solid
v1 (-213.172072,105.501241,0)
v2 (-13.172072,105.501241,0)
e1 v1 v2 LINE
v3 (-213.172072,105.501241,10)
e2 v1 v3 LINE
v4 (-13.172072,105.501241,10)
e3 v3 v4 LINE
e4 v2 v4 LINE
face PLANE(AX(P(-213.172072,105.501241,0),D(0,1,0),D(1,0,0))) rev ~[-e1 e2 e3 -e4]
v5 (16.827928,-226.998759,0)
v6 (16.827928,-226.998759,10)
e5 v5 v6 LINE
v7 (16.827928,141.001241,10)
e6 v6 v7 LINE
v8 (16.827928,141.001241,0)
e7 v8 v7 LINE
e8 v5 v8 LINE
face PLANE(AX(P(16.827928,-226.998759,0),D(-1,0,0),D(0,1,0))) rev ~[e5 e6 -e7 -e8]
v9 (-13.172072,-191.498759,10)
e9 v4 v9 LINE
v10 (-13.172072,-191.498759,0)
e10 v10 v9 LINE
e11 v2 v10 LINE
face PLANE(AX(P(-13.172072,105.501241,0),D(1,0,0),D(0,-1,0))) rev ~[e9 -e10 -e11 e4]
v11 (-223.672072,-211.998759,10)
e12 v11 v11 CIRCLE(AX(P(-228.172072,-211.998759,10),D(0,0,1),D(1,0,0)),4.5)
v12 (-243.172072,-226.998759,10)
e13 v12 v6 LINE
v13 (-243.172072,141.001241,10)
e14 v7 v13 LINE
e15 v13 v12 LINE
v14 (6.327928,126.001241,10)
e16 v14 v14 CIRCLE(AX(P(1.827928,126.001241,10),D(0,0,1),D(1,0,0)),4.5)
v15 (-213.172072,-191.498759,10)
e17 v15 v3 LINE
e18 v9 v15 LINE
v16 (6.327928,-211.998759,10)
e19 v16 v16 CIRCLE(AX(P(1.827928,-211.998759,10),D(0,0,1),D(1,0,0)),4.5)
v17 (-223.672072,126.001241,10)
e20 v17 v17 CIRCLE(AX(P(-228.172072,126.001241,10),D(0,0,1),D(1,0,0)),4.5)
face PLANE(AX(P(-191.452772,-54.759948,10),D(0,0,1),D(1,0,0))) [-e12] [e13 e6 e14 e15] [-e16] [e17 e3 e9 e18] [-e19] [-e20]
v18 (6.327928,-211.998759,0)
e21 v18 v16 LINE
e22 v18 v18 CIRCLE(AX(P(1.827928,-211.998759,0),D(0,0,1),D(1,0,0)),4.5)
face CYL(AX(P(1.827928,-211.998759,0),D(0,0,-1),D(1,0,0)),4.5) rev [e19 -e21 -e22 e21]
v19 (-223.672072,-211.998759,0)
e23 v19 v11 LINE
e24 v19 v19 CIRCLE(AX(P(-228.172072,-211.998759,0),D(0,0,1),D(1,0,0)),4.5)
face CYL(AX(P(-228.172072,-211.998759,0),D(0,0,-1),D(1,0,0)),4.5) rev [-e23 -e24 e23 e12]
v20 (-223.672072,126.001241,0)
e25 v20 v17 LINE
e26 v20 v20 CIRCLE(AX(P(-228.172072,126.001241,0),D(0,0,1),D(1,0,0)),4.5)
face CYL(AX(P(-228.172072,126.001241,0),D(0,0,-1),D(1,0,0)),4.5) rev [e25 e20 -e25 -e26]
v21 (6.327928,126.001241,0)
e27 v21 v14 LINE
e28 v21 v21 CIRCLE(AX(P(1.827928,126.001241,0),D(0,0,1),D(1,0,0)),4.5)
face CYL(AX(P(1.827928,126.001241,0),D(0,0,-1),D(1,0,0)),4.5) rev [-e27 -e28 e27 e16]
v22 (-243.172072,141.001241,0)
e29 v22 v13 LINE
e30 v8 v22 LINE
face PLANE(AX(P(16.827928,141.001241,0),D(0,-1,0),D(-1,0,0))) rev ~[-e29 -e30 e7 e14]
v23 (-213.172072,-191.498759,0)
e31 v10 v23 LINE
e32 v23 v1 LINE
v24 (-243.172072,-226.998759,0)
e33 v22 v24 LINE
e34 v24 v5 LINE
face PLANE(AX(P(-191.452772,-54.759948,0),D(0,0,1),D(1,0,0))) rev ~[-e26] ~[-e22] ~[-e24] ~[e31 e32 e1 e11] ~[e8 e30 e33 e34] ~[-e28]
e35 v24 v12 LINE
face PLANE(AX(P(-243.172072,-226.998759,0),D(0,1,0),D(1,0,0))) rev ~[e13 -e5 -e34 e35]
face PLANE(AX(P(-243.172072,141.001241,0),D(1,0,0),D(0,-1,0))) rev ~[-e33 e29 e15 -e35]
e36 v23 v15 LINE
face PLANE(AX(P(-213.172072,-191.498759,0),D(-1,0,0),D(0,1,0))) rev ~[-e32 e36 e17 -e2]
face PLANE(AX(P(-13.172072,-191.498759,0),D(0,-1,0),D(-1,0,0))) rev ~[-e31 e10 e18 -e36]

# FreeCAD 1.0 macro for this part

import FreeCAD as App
import Part
import Sketcher
from FreeCAD import Vector
Q = App.Units.Quantity

doc = App.newDocument("Part")
body = doc.addObject("PartDesign::Body", "Body")

# Sketch on XY plane
sketch1 = body.newObject("Sketcher::SketchObject", "Sketch")
sketch1.AttachmentSupport = (doc.getObject("XY_Plane"), [""])
sketch1.MapMode = "FlatFace"
sketch1.addGeometry([
    Part.LineSegment(Vector(-243.2, 141, 0), Vector(-243.2, -227, 0)),  # 0
    Part.LineSegment(Vector(-243.2, -227, 0), Vector(16.8, -227, 0)),  # 1
    Part.LineSegment(Vector(16.8, -227, 0), Vector(16.8, 141, 0)),  # 2
    Part.LineSegment(Vector(16.8, 141, 0), Vector(-243.2, 141, 0)),  # 3
    Part.Circle(Vector(-228.2, -212, 0), Vector(0, 0, 1), 4.5),  # 4
    Part.Circle(Vector(1.8, -212, 0), Vector(0, 0, 1), 4.5),  # 5
    Part.LineSegment(Vector(-213.2, 105.5, 0), Vector(-13.2, 105.5, 0)),  # 6
    Part.LineSegment(Vector(-13.2, 105.5, 0), Vector(-13.2, -191.5, 0)),  # 7
    Part.LineSegment(Vector(-13.2, -191.5, 0), Vector(-213.2, -191.5, 0)),  # 8
    Part.LineSegment(Vector(-213.2, -191.5, 0), Vector(-213.2, 105.5, 0)),  # 9
    Part.Circle(Vector(-228.2, 126, 0), Vector(0, 0, 1), 4.5),  # 10
    Part.Circle(Vector(1.8, 126, 0), Vector(0, 0, 1), 4.5),  # 11
], False)
sketch1.addConstraint([
    Sketcher.Constraint("Coincident", 0, 2, 1, 1),
    Sketcher.Constraint("Coincident", 1, 2, 2, 1),
    Sketcher.Constraint("Coincident", 2, 2, 3, 1),
    Sketcher.Constraint("Coincident", 3, 2, 0, 1),
    Sketcher.Constraint("Coincident", 6, 2, 7, 1),
    Sketcher.Constraint("Coincident", 7, 2, 8, 1),
    Sketcher.Constraint("Coincident", 8, 2, 9, 1),
    Sketcher.Constraint("Coincident", 9, 2, 6, 1),
    Sketcher.Constraint("Vertical", 0),
    Sketcher.Constraint("Horizontal", 1),
    Sketcher.Constraint("Vertical", 2),
    Sketcher.Constraint("Horizontal", 3),
    Sketcher.Constraint("Horizontal", 6),
    Sketcher.Constraint("Vertical", 7),
    Sketcher.Constraint("Horizontal", 8),
    Sketcher.Constraint("Vertical", 9),
    Sketcher.Constraint("Equal", 4, 5),
    Sketcher.Constraint("Equal", 5, 10),
    Sketcher.Constraint("Equal", 10, 11),
    Sketcher.Constraint("Horizontal", 4, 3, 5, 3),
    Sketcher.Constraint("Horizontal", 10, 3, 11, 3),
    Sketcher.Constraint("Vertical", 4, 3, 10, 3),
    Sketcher.Constraint("Vertical", 5, 3, 11, 3),
    Sketcher.Constraint("Diameter", 4, Q("9 mm")),
    Sketcher.Constraint("DistanceX", 1, 1, 1, 2, Q("260 mm")),
    Sketcher.Constraint("DistanceX", 6, 1, 6, 2, Q("200 mm")),
    Sketcher.Constraint("DistanceY", 0, 2, 0, 1, Q("368 mm")),
    Sketcher.Constraint("DistanceY", 7, 2, 7, 1, Q("297 mm")),
    Sketcher.Constraint("DistanceX", 4, 3, 5, 3, Q("230 mm")),
    Sketcher.Constraint("DistanceY", 4, 3, 10, 3, Q("338 mm")),
    Sketcher.Constraint("DistanceX", 0, 2, 4, 3, Q("15 mm")),
    Sketcher.Constraint("DistanceY", 0, 2, 4, 3, Q("15 mm")),
    Sketcher.Constraint("DistanceX", 6, 2, 11, 3, Q("15 mm")),
    Sketcher.Constraint("DistanceY", 6, 2, 11, 3, Q("20.5 mm")),
    Sketcher.Constraint("DistanceX", 4, 3, -1, 1, Q("228.172072 mm")),
    Sketcher.Constraint("DistanceY", 4, 3, -1, 1, Q("211.998759 mm")),
])
pad1 = body.newObject("PartDesign::Pad", "Pad")
pad1.Profile = sketch1
pad1.Length = 10

doc.recompute()
